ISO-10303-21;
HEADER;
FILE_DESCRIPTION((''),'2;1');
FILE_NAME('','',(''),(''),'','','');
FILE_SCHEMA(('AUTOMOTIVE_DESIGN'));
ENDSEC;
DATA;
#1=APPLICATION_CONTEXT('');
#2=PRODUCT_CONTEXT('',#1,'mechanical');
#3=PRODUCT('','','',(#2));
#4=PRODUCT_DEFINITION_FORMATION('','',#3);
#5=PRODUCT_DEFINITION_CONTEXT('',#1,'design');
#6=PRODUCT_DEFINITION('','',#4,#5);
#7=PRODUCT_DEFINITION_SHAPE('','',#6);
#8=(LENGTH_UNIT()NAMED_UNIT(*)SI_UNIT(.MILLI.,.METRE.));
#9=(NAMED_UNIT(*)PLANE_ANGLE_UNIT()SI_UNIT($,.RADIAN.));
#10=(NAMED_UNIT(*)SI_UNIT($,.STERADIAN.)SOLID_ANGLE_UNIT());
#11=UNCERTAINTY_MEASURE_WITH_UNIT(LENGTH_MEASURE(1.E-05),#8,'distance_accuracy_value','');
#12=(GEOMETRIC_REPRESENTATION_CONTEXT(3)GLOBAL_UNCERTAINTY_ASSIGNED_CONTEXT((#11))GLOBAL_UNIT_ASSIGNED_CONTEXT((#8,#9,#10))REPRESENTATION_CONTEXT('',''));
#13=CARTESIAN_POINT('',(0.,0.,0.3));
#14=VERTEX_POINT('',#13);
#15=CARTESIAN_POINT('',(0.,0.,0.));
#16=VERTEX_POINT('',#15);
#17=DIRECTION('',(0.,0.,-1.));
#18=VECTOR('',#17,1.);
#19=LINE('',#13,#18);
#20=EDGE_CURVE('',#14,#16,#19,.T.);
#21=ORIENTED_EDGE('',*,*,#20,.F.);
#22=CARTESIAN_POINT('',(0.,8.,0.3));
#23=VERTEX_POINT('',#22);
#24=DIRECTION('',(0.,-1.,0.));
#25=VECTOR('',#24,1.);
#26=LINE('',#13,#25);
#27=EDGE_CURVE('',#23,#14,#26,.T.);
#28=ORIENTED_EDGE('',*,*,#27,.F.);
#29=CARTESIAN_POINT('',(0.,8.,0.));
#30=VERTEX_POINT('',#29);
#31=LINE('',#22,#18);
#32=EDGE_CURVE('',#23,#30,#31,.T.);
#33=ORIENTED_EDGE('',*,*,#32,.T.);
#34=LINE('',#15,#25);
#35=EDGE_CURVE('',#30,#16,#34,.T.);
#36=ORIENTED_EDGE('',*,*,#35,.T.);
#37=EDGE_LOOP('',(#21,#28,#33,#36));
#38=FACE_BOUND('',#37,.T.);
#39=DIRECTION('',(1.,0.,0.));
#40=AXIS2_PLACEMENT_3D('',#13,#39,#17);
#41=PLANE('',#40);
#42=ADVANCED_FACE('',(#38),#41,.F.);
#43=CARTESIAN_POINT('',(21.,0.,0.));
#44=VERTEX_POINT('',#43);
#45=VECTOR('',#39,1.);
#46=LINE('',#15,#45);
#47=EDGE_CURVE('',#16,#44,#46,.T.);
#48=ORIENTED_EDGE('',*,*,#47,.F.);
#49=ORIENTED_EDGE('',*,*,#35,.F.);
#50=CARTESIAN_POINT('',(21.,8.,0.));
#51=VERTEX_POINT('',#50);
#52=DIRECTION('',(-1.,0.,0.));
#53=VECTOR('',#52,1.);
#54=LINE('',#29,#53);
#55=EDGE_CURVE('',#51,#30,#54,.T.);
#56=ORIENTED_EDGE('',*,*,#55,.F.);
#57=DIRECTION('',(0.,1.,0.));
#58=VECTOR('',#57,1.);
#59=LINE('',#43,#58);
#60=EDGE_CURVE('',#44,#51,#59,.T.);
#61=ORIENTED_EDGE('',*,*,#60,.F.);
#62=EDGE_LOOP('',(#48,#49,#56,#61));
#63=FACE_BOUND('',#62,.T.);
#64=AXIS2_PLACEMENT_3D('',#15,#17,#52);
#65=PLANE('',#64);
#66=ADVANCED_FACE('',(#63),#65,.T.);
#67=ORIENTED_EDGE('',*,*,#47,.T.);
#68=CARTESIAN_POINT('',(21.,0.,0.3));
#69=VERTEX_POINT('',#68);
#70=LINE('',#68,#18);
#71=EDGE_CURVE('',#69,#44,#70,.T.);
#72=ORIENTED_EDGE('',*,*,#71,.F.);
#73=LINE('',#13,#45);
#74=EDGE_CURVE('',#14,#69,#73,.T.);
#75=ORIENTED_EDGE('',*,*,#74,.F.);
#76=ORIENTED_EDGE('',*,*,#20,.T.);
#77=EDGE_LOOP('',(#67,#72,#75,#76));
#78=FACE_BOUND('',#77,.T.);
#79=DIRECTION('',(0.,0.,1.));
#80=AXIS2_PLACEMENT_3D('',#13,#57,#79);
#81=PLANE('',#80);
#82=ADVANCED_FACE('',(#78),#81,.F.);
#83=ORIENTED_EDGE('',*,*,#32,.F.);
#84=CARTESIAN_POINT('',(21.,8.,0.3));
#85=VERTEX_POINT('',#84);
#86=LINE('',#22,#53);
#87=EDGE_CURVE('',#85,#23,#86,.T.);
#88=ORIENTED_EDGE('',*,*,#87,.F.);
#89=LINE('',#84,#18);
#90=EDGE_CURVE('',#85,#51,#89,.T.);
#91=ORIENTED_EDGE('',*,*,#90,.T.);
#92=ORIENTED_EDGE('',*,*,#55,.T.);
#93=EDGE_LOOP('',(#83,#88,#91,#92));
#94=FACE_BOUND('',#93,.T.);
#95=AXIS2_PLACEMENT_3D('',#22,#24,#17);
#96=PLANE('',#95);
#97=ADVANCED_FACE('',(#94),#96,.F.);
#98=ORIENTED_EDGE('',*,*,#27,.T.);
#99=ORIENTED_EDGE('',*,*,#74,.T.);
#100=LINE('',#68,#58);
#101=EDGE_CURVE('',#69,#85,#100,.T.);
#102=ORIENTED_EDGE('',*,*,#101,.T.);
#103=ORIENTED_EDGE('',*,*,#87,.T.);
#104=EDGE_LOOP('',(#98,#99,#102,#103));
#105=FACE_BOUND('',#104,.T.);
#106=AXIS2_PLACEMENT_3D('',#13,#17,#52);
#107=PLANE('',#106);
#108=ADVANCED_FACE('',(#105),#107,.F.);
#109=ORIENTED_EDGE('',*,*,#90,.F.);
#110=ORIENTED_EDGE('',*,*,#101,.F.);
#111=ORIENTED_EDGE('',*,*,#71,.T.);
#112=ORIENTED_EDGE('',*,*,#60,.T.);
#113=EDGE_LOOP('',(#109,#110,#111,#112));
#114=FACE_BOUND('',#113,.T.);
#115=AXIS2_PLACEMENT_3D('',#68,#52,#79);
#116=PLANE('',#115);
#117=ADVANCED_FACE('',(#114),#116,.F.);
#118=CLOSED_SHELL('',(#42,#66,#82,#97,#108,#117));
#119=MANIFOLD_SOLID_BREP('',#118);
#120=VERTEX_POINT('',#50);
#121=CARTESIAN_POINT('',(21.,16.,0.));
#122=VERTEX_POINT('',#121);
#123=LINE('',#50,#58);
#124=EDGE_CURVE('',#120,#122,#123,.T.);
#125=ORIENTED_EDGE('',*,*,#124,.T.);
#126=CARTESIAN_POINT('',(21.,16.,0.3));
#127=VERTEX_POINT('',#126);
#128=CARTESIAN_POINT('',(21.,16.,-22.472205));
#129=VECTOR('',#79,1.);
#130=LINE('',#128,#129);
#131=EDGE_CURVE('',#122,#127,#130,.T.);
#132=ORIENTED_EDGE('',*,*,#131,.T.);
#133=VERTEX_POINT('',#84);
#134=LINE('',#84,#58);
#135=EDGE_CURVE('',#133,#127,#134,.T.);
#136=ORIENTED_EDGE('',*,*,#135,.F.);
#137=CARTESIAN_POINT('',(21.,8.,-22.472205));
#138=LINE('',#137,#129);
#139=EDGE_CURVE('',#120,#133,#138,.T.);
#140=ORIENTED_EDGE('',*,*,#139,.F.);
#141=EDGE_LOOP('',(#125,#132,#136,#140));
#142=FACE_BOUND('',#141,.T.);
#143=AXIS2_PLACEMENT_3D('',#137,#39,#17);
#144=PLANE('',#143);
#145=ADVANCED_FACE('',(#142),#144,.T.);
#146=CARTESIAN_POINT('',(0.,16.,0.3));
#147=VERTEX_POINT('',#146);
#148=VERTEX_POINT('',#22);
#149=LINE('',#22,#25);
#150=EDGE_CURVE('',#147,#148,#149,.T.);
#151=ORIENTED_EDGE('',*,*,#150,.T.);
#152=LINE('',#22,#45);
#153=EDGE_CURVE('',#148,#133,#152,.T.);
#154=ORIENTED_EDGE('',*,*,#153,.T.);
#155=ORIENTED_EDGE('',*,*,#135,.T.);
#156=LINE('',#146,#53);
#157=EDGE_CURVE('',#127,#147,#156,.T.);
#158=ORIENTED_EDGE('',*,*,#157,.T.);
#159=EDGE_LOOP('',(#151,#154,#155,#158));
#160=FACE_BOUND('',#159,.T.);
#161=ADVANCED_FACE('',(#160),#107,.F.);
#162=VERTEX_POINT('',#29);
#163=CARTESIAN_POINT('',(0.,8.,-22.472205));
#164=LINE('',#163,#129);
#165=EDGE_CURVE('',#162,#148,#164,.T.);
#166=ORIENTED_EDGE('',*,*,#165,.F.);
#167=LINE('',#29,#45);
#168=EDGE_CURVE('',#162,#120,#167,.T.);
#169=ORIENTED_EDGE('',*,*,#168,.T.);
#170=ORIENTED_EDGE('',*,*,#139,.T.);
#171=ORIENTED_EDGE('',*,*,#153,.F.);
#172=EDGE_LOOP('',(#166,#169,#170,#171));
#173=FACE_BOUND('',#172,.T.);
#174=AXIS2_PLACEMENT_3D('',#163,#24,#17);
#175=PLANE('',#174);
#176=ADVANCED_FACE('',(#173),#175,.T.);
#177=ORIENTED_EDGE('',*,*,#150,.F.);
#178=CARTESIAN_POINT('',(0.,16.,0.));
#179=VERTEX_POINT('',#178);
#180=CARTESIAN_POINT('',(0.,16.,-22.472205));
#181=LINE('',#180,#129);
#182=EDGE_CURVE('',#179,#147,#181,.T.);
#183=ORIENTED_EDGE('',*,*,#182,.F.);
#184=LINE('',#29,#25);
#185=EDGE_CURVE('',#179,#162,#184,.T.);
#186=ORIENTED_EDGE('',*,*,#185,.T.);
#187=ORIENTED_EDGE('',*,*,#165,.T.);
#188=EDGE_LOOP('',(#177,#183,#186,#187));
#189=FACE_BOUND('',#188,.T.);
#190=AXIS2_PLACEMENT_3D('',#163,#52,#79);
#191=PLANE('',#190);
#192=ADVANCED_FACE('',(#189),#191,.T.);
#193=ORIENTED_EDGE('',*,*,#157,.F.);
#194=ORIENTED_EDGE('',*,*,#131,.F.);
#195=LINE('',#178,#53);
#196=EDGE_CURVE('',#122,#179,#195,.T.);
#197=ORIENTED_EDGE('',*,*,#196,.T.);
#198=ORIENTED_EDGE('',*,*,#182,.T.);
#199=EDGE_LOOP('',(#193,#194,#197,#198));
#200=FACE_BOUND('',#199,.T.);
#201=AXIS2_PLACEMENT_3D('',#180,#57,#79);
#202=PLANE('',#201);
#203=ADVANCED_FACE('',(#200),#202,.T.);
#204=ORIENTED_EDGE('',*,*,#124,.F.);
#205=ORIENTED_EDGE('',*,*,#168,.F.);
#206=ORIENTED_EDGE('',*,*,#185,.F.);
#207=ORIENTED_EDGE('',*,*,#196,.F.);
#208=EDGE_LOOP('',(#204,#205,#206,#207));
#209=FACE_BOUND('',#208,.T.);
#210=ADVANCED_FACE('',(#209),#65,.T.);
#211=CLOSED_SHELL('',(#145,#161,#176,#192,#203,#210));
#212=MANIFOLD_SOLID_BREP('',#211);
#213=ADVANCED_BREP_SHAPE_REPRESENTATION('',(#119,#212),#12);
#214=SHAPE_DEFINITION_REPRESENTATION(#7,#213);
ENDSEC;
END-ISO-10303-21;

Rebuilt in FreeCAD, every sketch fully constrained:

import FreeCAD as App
import Part
import Sketcher


def add_polygon(sketch, points):
    """Adds a closed chain of lines whose ends are joined by coincident constraints."""
    first, n = sketch.GeometryCount, len(points)
    for a, b in zip(points, points[1:] + points[:1]):
        sketch.addGeometry(Part.LineSegment(App.Vector(*a, 0), App.Vector(*b, 0)), False)
    for i in range(n):
        sketch.addConstraint(Sketcher.Constraint("Coincident", first + i, 2, first + (i + 1) % n, 1))

doc = App.newDocument("Part")
body = doc.addObject("PartDesign::Body", "Body")

# Sketch on XY plane
sketch1 = body.newObject("Sketcher::SketchObject", "Sketch")
sketch1.AttachmentSupport = (doc.getObject("XY_Plane"), [""])
sketch1.MapMode = "FlatFace"
add_polygon(sketch1, [(0, 8), (0, 0), (21, 0), (21, 8)])  # lines 0-3
sketch1.addConstraint([
    Sketcher.Constraint("Vertical", 0),
    Sketcher.Constraint("Horizontal", 1),
    Sketcher.Constraint("Vertical", 2),
    Sketcher.Constraint("Horizontal", 3),
    Sketcher.Constraint("Coincident", 0, 2, -1, 1),
    Sketcher.Constraint("DistanceX", 1, 1, 1, 2, 21.0),
    Sketcher.Constraint("DistanceY", 0, 2, 0, 1, 8.0),
])
pad1 = body.newObject("PartDesign::Pad", "Pad")
pad1.Profile = sketch1
pad1.Length = 0.3
body2 = doc.addObject("PartDesign::Body", "Body001")

# Sketch on XY plane
sketch2 = body2.newObject("Sketcher::SketchObject", "Sketch001")
sketch2.AttachmentSupport = (doc.getObject("XY_Plane001"), [""])
sketch2.MapMode = "FlatFace"
sketch2.AttachmentOffset = App.Placement(App.Vector(0, 0, 0.3), App.Rotation())
add_polygon(sketch2, [(0, 16), (0, 8), (21, 8), (21, 16)])  # lines 0-3
sketch2.addConstraint([
    Sketcher.Constraint("Vertical", 0),
    Sketcher.Constraint("Horizontal", 1),
    Sketcher.Constraint("Vertical", 2),
    Sketcher.Constraint("Horizontal", 3),
    Sketcher.Constraint("PointOnObject", 0, 2, -2),
    Sketcher.Constraint("DistanceX", 1, 1, 1, 2, 21.0),
    Sketcher.Constraint("DistanceY", 0, 2, 0, 1, 8.0),
    Sketcher.Constraint("DistanceY", -1, 1, 0, 2, 8.0),
])
pad2 = body2.newObject("PartDesign::Pad", "Pad001")
pad2.Profile = sketch2
pad2.Length = 0.3
pad2.Reversed = True

doc.recompute()
